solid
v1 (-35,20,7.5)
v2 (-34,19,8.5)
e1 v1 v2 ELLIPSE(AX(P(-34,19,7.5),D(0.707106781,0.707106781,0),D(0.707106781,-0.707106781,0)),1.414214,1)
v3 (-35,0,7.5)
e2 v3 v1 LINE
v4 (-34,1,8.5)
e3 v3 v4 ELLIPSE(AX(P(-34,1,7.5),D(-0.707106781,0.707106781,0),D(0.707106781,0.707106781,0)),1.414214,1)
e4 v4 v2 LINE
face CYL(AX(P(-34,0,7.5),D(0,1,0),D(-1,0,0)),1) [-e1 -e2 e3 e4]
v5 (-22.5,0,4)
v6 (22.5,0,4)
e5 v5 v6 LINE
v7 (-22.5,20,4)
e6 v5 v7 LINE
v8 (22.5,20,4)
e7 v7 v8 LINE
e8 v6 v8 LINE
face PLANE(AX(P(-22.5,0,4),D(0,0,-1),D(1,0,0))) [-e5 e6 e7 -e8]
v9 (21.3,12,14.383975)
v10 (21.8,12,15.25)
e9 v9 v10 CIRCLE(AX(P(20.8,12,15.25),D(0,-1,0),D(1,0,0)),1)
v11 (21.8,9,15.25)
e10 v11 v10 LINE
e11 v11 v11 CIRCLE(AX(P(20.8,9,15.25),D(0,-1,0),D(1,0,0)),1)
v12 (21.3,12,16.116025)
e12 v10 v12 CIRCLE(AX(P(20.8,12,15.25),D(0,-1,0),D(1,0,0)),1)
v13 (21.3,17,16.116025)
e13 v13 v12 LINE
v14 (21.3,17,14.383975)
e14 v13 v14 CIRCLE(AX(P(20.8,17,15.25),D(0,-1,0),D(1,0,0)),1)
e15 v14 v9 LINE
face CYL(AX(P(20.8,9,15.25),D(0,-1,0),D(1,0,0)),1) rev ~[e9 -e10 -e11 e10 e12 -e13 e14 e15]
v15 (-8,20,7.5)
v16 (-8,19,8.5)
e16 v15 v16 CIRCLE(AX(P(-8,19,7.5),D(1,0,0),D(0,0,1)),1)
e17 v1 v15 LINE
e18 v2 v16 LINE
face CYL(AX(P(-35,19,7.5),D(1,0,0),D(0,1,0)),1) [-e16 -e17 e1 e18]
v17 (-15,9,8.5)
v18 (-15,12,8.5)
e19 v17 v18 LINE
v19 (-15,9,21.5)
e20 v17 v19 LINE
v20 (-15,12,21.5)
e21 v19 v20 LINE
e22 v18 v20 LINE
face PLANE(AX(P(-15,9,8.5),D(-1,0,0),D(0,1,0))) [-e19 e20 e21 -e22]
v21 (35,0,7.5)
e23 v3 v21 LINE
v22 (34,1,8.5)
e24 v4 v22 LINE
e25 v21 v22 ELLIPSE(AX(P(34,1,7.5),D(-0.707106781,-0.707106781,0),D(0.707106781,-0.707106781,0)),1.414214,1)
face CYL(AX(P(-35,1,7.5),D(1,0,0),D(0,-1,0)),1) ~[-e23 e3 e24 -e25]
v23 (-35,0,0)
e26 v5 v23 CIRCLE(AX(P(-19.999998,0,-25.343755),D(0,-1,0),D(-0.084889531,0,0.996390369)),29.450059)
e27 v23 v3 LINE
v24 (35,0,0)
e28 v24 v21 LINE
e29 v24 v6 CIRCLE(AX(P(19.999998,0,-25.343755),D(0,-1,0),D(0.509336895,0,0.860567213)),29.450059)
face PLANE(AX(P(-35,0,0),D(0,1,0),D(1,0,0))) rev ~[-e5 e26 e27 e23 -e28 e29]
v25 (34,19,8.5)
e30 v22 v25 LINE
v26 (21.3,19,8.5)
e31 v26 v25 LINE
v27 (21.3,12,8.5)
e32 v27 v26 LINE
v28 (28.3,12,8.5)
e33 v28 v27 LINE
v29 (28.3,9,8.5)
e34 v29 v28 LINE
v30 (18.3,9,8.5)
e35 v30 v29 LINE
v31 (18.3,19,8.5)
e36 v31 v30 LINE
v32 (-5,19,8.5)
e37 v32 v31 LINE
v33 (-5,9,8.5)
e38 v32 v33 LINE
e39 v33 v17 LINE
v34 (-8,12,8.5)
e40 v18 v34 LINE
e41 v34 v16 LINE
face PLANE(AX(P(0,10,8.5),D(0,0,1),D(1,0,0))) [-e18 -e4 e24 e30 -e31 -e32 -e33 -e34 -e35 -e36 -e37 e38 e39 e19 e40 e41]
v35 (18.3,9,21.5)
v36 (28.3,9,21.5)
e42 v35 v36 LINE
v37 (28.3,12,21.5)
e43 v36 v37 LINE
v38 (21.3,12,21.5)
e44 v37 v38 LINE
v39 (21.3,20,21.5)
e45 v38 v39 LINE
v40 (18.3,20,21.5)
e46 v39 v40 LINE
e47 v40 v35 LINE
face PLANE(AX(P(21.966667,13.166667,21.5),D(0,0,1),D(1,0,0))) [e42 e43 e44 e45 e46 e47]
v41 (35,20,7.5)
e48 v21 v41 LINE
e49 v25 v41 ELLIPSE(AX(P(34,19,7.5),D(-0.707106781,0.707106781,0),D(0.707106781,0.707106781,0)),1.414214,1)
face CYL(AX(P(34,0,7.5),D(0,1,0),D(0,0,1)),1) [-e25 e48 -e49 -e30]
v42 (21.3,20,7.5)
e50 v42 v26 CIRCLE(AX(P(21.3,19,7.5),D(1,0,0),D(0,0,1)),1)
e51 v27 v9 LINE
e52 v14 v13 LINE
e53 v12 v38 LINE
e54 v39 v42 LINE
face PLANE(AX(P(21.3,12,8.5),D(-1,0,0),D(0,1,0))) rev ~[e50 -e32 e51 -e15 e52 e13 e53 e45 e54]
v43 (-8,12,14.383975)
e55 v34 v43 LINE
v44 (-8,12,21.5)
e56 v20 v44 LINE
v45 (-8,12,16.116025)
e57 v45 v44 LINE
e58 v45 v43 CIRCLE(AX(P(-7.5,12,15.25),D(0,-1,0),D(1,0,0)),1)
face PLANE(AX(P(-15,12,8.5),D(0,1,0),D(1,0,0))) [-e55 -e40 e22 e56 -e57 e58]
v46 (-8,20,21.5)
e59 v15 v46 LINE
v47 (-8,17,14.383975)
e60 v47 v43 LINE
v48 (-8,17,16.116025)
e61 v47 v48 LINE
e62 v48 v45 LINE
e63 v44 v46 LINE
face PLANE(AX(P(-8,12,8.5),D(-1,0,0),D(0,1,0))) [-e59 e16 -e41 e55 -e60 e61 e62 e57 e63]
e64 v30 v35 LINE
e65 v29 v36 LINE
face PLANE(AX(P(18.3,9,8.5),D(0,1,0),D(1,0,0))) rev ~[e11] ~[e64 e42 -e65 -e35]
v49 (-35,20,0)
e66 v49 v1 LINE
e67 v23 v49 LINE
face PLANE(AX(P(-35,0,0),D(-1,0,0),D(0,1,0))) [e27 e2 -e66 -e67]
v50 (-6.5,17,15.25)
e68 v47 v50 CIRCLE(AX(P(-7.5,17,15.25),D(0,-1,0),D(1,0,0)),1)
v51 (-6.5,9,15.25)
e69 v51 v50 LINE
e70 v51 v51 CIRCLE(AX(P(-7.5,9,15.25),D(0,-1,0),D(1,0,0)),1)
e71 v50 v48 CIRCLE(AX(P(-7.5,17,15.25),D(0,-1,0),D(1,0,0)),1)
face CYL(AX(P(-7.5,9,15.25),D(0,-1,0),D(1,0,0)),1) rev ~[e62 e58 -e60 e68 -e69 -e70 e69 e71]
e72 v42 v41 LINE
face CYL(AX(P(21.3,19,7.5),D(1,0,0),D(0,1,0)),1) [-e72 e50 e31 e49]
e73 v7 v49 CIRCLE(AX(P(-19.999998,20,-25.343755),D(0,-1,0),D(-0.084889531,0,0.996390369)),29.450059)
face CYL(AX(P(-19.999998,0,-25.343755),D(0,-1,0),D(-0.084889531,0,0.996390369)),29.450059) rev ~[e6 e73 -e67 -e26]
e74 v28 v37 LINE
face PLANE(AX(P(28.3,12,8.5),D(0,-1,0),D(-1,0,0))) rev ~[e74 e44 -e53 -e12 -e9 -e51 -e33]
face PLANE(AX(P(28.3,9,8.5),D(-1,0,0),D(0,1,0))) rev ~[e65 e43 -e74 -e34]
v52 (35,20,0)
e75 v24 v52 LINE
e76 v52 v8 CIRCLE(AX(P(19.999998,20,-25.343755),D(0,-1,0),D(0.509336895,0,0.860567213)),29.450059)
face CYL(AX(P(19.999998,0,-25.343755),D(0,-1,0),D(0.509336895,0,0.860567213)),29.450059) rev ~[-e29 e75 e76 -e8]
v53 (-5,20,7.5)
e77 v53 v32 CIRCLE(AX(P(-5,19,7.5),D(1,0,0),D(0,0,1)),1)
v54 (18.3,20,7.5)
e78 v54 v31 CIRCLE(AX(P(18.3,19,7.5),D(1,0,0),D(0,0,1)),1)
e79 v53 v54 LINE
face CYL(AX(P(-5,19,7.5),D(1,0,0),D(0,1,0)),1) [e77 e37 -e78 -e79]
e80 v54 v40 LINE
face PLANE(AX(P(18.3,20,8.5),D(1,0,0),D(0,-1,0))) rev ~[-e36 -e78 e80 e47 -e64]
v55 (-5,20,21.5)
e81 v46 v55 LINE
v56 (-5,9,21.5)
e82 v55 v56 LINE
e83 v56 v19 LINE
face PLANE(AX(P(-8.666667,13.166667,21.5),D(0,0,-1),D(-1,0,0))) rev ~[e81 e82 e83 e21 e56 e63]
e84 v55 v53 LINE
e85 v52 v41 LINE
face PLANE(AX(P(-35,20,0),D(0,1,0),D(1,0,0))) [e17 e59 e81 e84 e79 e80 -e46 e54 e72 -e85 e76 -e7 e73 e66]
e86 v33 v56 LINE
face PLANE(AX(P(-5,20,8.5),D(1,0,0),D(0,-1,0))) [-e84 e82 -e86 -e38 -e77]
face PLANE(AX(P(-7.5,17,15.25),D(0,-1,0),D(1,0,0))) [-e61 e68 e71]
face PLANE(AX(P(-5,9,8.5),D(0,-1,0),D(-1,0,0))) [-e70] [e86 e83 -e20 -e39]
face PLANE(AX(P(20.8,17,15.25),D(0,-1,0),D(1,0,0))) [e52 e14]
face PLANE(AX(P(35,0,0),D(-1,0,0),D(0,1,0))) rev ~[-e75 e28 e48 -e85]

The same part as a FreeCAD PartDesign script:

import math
import FreeCAD as App
import Part
import Sketcher

V = App.Vector
Q = App.Units.Quantity


def edges_at(feature, points):
    """Names of the edges that pass closest to the given points."""
    edges = feature.Shape.Edges
    near = lambda p: min(range(len(edges)), key=lambda i: edges[i].distToShape(Part.Vertex(*p))[0])
    return sorted({f"Edge{near(p) + 1}" for p in points})

doc = App.newDocument("Part")
body = doc.addObject("PartDesign::Body", "Body")

sketch1 = body.newObject("Sketcher::SketchObject", "Sketch")
sketch1.AttachmentSupport = (doc.getObject("XY_Plane"), [""])
sketch1.MapMode = "FlatFace"
sketch1.addGeometry(Part.LineSegment(V(-35, 20, 0), V(-35, 0, 0)), False)
sketch1.addGeometry(Part.LineSegment(V(-35, 0, 0), V(35, 0, 0)), False)
sketch1.addGeometry(Part.LineSegment(V(35, 0, 0), V(35, 20, 0)), False)
sketch1.addGeometry(Part.LineSegment(V(35, 20, 0), V(-35, 20, 0)), False)
sketch1.addConstraint(Sketcher.Constraint("Coincident", 0, 2, 1, 1))
sketch1.addConstraint(Sketcher.Constraint("Coincident", 1, 2, 2, 1))
sketch1.addConstraint(Sketcher.Constraint("Coincident", 2, 2, 3, 1))
sketch1.addConstraint(Sketcher.Constraint("Coincident", 3, 2, 0, 1))
sketch1.addConstraint(Sketcher.Constraint("Vertical", 0))
sketch1.addConstraint(Sketcher.Constraint("Horizontal", 1))
sketch1.addConstraint(Sketcher.Constraint("Vertical", 2))
sketch1.addConstraint(Sketcher.Constraint("Horizontal", 3))
sketch1.addConstraint(Sketcher.Constraint("Symmetric", 0, 2, 1, 2, -1, 1))
sketch1.addConstraint(Sketcher.Constraint("DistanceX", 1, 1, 1, 2, Q("70 mm")))
sketch1.addConstraint(Sketcher.Constraint("DistanceY", 0, 2, 0, 1, Q("20 mm")))
pad1 = body.newObject("PartDesign::Pad", "Pad")
pad1.Profile = sketch1
pad1.Length = 8.5

sketch2 = body.newObject("Sketcher::SketchObject", "Sketch001")
sketch2.AttachmentSupport = (doc.getObject("XZ_Plane"), [""])
sketch2.MapMode = "FlatFace"
sketch2.addGeometry(Part.LineSegment(V(22, 4, 0), V(-22, 4, 0)), False)
sketch2.addGeometry(Part.ArcOfCircle(Part.Circle(V(-20, -25, 0), V(0, 0, 1), 29), math.radians(95), math.radians(121)), False)
sketch2.addGeometry(Part.LineSegment(V(-35, 0, 0), V(35, 0, 0)), False)
sketch2.addGeometry(Part.ArcOfCircle(Part.Circle(V(20, -25, 0), V(0, 0, 1), 29), math.radians(59), math.radians(85)), False)
sketch2.addConstraint(Sketcher.Constraint("Coincident", 0, 2, 1, 1))
sketch2.addConstraint(Sketcher.Constraint("Coincident", 1, 2, 2, 1))
sketch2.addConstraint(Sketcher.Constraint("Coincident", 2, 2, 3, 1))
sketch2.addConstraint(Sketcher.Constraint("Coincident", 3, 2, 0, 1))
sketch2.addConstraint(Sketcher.Constraint("Horizontal", 0))
sketch2.addConstraint(Sketcher.Constraint("Horizontal", 2))
sketch2.addConstraint(Sketcher.Constraint("Equal", 1, 3))
sketch2.addConstraint(Sketcher.Constraint("Symmetric", 1, 2, 2, 2, -1, 1))
sketch2.addConstraint(Sketcher.Constraint("Horizontal", 1, 3, 3, 3))
sketch2.addConstraint(Sketcher.Constraint("DistanceX", 0, 2, 0, 1, Q("45 mm")))
sketch2.addConstraint(Sketcher.Constraint("DistanceX", 2, 1, 2, 2, Q("70 mm")))
sketch2.addConstraint(Sketcher.Constraint("DistanceX", 1, 3, -1, 1, Q("19.999998 mm")))
sketch2.addConstraint(Sketcher.Constraint("DistanceY", -1, 1, 0, 2, Q("4 mm")))
pocket1 = body.newObject("PartDesign::Pocket", "Pocket")
pocket1.Profile = sketch2
pocket1.Length = 20

sketch3 = body.newObject("Sketcher::SketchObject", "Sketch002")
sketch3.AttachmentSupport = (doc.getObject("XY_Plane"), [""])
sketch3.MapMode = "FlatFace"
sketch3.AttachmentOffset = App.Placement(V(0, 0, 8.5), App.Rotation())
sketch3.addGeometry(Part.LineSegment(V(-15, 9, 0), V(-5, 9, 0)), False)
sketch3.addGeometry(Part.LineSegment(V(-5, 9, 0), V(-5, 20, 0)), False)
sketch3.addGeometry(Part.LineSegment(V(-5, 20, 0), V(-8, 20, 0)), False)
sketch3.addGeometry(Part.LineSegment(V(-8, 20, 0), V(-8, 12, 0)), False)
sketch3.addGeometry(Part.LineSegment(V(-8, 12, 0), V(-15, 12, 0)), False)
sketch3.addGeometry(Part.LineSegment(V(-15, 12, 0), V(-15, 9, 0)), False)
sketch3.addGeometry(Part.LineSegment(V(18.3, 9, 0), V(28.3, 9, 0)), False)
sketch3.addGeometry(Part.LineSegment(V(28.3, 9, 0), V(28.3, 12, 0)), False)
sketch3.addGeometry(Part.LineSegment(V(28.3, 12, 0), V(21.3, 12, 0)), False)
sketch3.addGeometry(Part.LineSegment(V(21.3, 12, 0), V(21.3, 20, 0)), False)
sketch3.addGeometry(Part.LineSegment(V(21.3, 20, 0), V(18.3, 20, 0)), False)
sketch3.addGeometry(Part.LineSegment(V(18.3, 20, 0), V(18.3, 9, 0)), False)
sketch3.addConstraint(Sketcher.Constraint("Coincident", 0, 2, 1, 1))
sketch3.addConstraint(Sketcher.Constraint("Coincident", 1, 2, 2, 1))
sketch3.addConstraint(Sketcher.Constraint("Coincident", 2, 2, 3, 1))
sketch3.addConstraint(Sketcher.Constraint("Coincident", 3, 2, 4, 1))
sketch3.addConstraint(Sketcher.Constraint("Coincident", 4, 2, 5, 1))
sketch3.addConstraint(Sketcher.Constraint("Coincident", 5, 2, 0, 1))
sketch3.addConstraint(Sketcher.Constraint("Coincident", 6, 2, 7, 1))
sketch3.addConstraint(Sketcher.Constraint("Coincident", 7, 2, 8, 1))
sketch3.addConstraint(Sketcher.Constraint("Coincident", 8, 2, 9, 1))
sketch3.addConstraint(Sketcher.Constraint("Coincident", 9, 2, 10, 1))
sketch3.addConstraint(Sketcher.Constraint("Coincident", 10, 2, 11, 1))
sketch3.addConstraint(Sketcher.Constraint("Coincident", 11, 2, 6, 1))
sketch3.addConstraint(Sketcher.Constraint("Horizontal", 0))
sketch3.addConstraint(Sketcher.Constraint("Vertical", 1))
sketch3.addConstraint(Sketcher.Constraint("Horizontal", 2))
sketch3.addConstraint(Sketcher.Constraint("Vertical", 3))
sketch3.addConstraint(Sketcher.Constraint("Horizontal", 4))
sketch3.addConstraint(Sketcher.Constraint("Vertical", 5))
sketch3.addConstraint(Sketcher.Constraint("Horizontal", 6))
sketch3.addConstraint(Sketcher.Constraint("Vertical", 7))
sketch3.addConstraint(Sketcher.Constraint("Horizontal", 8))
sketch3.addConstraint(Sketcher.Constraint("Vertical", 9))
sketch3.addConstraint(Sketcher.Constraint("Horizontal", 10))
sketch3.addConstraint(Sketcher.Constraint("Vertical", 11))
sketch3.addConstraint(Sketcher.Constraint("Horizontal", 5, 2, 6, 2))
sketch3.addConstraint(Sketcher.Constraint("Horizontal", 4, 2, 7, 2))
sketch3.addConstraint(Sketcher.Constraint("Horizontal", 2, 2, 9, 2))
sketch3.addConstraint(Sketcher.Constraint("Equal", 0, 6))
sketch3.addConstraint(Sketcher.Constraint("Equal", 4, 8))
sketch3.addConstraint(Sketcher.Constraint("Equal", 10, 5))
sketch3.addConstraint(Sketcher.Constraint("DistanceX", 0, 1, 0, 2, Q("10 mm")))
sketch3.addConstraint(Sketcher.Constraint("DistanceX", 2, 2, 2, 1, Q("3 mm")))
sketch3.addConstraint(Sketcher.Constraint("DistanceY", 1, 1, 1, 2, Q("11 mm")))
sketch3.addConstraint(Sketcher.Constraint("DistanceX", 0, 2, -1, 1, Q("5 mm")))
sketch3.addConstraint(Sketcher.Constraint("DistanceY", -1, 1, 0, 2, Q("9 mm")))
sketch3.addConstraint(Sketcher.Constraint("DistanceX", -1, 1, 6, 2, Q("28.3 mm")))
pad2 = body.newObject("PartDesign::Pad", "Pad001")
pad2.Profile = sketch3
pad2.Length = 13

sketch4 = body.newObject("Sketcher::SketchObject", "Sketch003")
sketch4.AttachmentSupport = (doc.getObject("XZ_Plane"), [""])
sketch4.MapMode = "FlatFace"
sketch4.AttachmentOffset = App.Placement(V(0, 0, -9), App.Rotation())
sketch4.addGeometry(Part.Circle(V(-7.5, 15.2, 0), V(0, 0, 1), 1), False)
sketch4.addGeometry(Part.Circle(V(20.8, 15.2, 0), V(0, 0, 1), 1), False)
sketch4.addConstraint(Sketcher.Constraint("Equal", 0, 1))
sketch4.addConstraint(Sketcher.Constraint("Horizontal", 0, 3, 1, 3))
sketch4.addConstraint(Sketcher.Constraint("Diameter", 0, Q("2 mm")))
sketch4.addConstraint(Sketcher.Constraint("DistanceX", 0, 3, -1, 1, Q("7.5 mm")))
sketch4.addConstraint(Sketcher.Constraint("DistanceX", -1, 1, 1, 3, Q("20.8 mm")))
sketch4.addConstraint(Sketcher.Constraint("DistanceY", -1, 1, 0, 3, Q("15.25 mm")))
pocket2 = body.newObject("PartDesign::Pocket", "Pocket001")
pocket2.Profile = sketch4
pocket2.Length = 8
doc.recompute()

fillet = body.newObject("PartDesign::Fillet", "Fillet")
fillet.Base = (pocket2, edges_at(pocket2, [
    (-21.5, 20, 8.5),
    (-35, 10, 8.5),
    (0, 0, 8.5),
    (35, 10, 8.5),
    (6.65, 20, 8.5),
    (28.15, 20, 8.5),
]))
fillet.Radius = 1

doc.recompute()
